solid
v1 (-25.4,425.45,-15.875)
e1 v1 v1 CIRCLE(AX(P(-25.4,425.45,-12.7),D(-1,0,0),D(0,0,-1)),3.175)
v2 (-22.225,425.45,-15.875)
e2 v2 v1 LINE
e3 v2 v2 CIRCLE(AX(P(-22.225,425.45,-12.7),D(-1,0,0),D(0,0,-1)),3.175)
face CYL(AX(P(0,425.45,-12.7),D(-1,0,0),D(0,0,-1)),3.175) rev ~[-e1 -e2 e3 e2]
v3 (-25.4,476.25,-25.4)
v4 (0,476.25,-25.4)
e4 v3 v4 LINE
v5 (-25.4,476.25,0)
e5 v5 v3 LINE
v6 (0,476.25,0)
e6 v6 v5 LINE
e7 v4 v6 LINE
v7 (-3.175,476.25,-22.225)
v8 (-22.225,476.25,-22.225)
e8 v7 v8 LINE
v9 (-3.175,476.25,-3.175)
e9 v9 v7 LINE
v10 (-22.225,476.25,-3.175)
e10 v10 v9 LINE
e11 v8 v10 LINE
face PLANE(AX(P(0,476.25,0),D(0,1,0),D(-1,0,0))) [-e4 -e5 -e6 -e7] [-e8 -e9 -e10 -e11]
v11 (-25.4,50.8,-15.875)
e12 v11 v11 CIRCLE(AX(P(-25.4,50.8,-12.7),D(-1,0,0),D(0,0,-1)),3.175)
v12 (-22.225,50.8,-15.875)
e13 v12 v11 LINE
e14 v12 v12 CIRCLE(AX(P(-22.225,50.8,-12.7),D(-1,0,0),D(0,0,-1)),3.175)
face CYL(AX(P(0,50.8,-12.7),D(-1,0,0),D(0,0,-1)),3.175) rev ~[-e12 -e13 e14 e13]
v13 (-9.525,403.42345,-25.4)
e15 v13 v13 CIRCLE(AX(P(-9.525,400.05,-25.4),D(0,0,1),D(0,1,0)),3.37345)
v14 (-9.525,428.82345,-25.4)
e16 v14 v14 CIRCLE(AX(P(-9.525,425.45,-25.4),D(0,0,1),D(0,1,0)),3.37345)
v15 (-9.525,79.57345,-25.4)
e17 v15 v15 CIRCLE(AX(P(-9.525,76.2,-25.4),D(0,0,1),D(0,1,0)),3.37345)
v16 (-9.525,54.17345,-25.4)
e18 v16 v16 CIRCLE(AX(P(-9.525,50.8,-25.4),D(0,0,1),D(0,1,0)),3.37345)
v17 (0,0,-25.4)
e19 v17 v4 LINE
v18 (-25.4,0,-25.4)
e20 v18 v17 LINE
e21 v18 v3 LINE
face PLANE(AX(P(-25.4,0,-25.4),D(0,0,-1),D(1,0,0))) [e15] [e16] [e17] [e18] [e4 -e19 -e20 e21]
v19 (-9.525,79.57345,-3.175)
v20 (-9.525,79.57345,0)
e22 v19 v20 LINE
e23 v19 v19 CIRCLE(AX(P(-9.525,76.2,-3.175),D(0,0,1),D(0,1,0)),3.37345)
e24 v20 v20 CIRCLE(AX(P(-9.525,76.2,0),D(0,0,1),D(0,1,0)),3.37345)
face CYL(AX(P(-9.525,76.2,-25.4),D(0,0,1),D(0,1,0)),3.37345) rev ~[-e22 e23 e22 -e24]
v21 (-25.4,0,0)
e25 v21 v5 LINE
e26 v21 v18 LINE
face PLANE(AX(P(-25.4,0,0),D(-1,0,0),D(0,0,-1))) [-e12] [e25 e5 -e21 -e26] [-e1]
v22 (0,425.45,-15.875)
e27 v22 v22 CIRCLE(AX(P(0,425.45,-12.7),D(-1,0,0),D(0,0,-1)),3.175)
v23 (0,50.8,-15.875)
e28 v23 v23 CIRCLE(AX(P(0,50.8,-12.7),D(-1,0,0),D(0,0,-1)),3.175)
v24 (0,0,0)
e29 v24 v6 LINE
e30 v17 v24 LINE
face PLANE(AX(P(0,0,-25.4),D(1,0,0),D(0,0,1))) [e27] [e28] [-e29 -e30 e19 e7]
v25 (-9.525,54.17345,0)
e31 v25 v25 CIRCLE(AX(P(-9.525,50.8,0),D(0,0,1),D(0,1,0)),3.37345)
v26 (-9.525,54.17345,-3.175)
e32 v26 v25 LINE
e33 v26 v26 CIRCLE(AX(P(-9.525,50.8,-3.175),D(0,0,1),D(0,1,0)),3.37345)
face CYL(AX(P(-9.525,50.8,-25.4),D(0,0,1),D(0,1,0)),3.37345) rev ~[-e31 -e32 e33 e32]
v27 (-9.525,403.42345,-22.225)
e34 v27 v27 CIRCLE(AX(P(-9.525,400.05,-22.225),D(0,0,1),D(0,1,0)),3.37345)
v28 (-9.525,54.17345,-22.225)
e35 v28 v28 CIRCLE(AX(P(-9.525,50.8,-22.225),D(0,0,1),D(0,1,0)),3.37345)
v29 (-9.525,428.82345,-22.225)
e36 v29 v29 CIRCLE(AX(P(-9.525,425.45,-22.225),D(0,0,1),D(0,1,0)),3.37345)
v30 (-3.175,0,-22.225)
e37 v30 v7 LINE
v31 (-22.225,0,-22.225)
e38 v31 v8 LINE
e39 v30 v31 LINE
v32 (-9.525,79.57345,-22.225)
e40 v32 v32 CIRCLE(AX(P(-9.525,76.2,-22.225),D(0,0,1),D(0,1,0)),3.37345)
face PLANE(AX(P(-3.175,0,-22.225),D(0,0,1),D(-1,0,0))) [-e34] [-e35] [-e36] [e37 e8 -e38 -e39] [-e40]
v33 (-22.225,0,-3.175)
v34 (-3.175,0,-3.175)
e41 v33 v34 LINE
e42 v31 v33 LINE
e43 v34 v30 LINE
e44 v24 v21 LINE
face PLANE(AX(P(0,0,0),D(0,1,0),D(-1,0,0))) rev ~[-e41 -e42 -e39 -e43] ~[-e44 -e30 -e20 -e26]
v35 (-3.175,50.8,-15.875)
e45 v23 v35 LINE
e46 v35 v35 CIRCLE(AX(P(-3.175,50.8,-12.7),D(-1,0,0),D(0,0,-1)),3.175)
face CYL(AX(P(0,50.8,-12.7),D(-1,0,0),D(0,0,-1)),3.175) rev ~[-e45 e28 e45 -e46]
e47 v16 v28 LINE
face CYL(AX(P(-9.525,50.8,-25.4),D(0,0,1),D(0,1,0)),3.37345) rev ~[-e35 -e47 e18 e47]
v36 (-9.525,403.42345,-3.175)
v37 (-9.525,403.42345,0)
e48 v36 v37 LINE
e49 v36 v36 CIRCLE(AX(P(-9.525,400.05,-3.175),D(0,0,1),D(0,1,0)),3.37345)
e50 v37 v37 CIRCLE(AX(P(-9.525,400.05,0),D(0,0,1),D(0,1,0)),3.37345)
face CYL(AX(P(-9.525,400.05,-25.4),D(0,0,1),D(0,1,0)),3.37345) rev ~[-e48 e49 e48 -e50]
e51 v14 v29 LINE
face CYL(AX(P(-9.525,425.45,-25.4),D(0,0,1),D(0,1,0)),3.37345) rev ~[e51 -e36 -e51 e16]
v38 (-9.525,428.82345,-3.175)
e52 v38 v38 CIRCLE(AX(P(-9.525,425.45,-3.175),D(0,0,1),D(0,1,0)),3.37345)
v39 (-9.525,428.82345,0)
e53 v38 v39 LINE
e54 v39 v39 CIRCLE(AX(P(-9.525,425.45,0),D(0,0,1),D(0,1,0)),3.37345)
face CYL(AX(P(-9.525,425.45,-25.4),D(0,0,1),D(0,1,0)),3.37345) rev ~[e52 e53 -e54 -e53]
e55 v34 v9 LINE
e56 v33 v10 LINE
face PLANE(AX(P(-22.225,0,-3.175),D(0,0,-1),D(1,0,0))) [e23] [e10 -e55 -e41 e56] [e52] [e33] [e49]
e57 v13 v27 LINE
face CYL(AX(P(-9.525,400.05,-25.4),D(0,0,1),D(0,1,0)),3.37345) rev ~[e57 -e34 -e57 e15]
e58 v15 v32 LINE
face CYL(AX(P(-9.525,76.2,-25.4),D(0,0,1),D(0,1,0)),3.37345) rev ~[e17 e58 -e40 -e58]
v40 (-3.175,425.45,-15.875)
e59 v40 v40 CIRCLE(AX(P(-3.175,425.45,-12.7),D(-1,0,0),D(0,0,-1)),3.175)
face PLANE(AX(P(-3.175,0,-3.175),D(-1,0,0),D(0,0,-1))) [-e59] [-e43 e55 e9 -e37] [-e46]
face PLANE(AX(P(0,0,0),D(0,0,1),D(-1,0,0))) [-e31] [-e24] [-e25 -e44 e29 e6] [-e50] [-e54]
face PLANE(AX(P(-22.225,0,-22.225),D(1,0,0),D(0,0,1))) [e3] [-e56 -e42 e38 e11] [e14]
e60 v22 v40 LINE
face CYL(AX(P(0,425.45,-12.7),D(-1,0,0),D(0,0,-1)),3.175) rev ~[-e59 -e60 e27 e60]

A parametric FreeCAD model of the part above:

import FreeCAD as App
import Part
import Sketcher

V = App.Vector
Q = App.Units.Quantity

doc = App.newDocument("Part")
body = doc.addObject("PartDesign::Body", "Body")

# Sketch on XZ plane
sketch1 = body.newObject("Sketcher::SketchObject", "Sketch")
sketch1.AttachmentSupport = (doc.getObject("XZ_Plane"), [""])
sketch1.MapMode = "FlatFace"
sketch1.addGeometry([
    Part.LineSegment(V(-25, 0, 0), V(0, 0, 0)),  # 0
    Part.LineSegment(V(0, 0, 0), V(0, -25, 0)),  # 1
    Part.LineSegment(V(0, -25, 0), V(-25, -25, 0)),  # 2
    Part.LineSegment(V(-25, -25, 0), V(-25, 0, 0)),  # 3
    Part.LineSegment(V(-22, -3, 0), V(-22, -22, 0)),  # 4
    Part.LineSegment(V(-22, -22, 0), V(-3, -22, 0)),  # 5
    Part.LineSegment(V(-3, -22, 0), V(-3, -3, 0)),  # 6
    Part.LineSegment(V(-3, -3, 0), V(-22, -3, 0)),  # 7
], False)
sketch1.addConstraint([
    Sketcher.Constraint("Coincident", 0, 2, 1, 1),
    Sketcher.Constraint("Coincident", 1, 2, 2, 1),
    Sketcher.Constraint("Coincident", 2, 2, 3, 1),
    Sketcher.Constraint("Coincident", 3, 2, 0, 1),
    Sketcher.Constraint("Coincident", 4, 2, 5, 1),
    Sketcher.Constraint("Coincident", 5, 2, 6, 1),
    Sketcher.Constraint("Coincident", 6, 2, 7, 1),
    Sketcher.Constraint("Coincident", 7, 2, 4, 1),
    Sketcher.Constraint("Horizontal", 0),
    Sketcher.Constraint("Vertical", 1),
    Sketcher.Constraint("Horizontal", 2),
    Sketcher.Constraint("Vertical", 3),
    Sketcher.Constraint("Vertical", 4),
    Sketcher.Constraint("Horizontal", 5),
    Sketcher.Constraint("Vertical", 6),
    Sketcher.Constraint("Horizontal", 7),
    Sketcher.Constraint("Coincident", 0, 2, -1, 1),
    Sketcher.Constraint("Equal", 2, 1),
    Sketcher.Constraint("Equal", 7, 4),
    Sketcher.Constraint("DistanceX", 0, 1, 0, 2, Q("1 in")),
    Sketcher.Constraint("DistanceX", 5, 2, -1, 1, Q("0.125 in")),
    Sketcher.Constraint("DistanceY", 6, 2, -1, 1, Q("0.125 in")),
    Sketcher.Constraint("DistanceX", 2, 2, 4, 2, Q("0.125 in")),
])
pad1 = body.newObject("PartDesign::Pad", "Pad")
pad1.Profile = sketch1
pad1.Length = Q("18.75 in")
pad1.Reversed = True

# Sketch on YZ plane
sketch2 = body.newObject("Sketcher::SketchObject", "Sketch001")
sketch2.AttachmentSupport = (doc.getObject("YZ_Plane"), [""])
sketch2.MapMode = "FlatFace"
sketch2.addGeometry([
    Part.Circle(V(50.8, -12.7, 0), V(0, 0, 1), 3.2),
    Part.Circle(V(425.4, -12.7, 0), V(0, 0, 1), 3.2),
], False)
sketch2.addConstraint([
    Sketcher.Constraint("Equal", 0, 1),
    Sketcher.Constraint("Horizontal", 0, 3, 1, 3),
    Sketcher.Constraint("Diameter", 0, Q("0.25 in")),
    Sketcher.Constraint("DistanceX", -1, 1, 0, 3, Q("2 in")),
    Sketcher.Constraint("DistanceY", 0, 3, -1, 1, Q("0.5 in")),
    Sketcher.Constraint("DistanceX", -1, 1, 1, 3, Q("16.75 in")),
])
doc.recompute()
hole = body.newObject("PartDesign::Hole", "Hole")
hole.Profile = sketch2
hole.ThreadType = "None"
hole.Diameter = Q("0.25 in")
hole.DepthType = "ThroughAll"

# Sketch on XY plane
sketch3 = body.newObject("Sketcher::SketchObject", "Sketch002")
sketch3.AttachmentSupport = (doc.getObject("XY_Plane"), [""])
sketch3.MapMode = "FlatFace"
sketch3.AttachmentOffset = App.Placement(V(0, 0, -1 * 25.4), App.Rotation())
sketch3.addGeometry([
    Part.Circle(V(-9.5, 50.8, 0), V(0, 0, 1), 3.4),
    Part.Circle(V(-9.5, 425.4, 0), V(0, 0, 1), 3.4),
    Part.Circle(V(-9.5, 400.1, 0), V(0, 0, 1), 3.4),
    Part.Circle(V(-9.5, 76.2, 0), V(0, 0, 1), 3.4),
], False)
sketch3.addConstraint([
    Sketcher.Constraint("Equal", 0, 1),
    Sketcher.Constraint("Equal", 1, 2),
    Sketcher.Constraint("Equal", 2, 3),
    Sketcher.Constraint("Vertical", 0, 3, 1, 3),
    Sketcher.Constraint("Vertical", 1, 3, 2, 3),
    Sketcher.Constraint("Vertical", 2, 3, 3, 3),
    Sketcher.Constraint("Diameter", 0, Q("0.2656299 in")),
    Sketcher.Constraint("DistanceY", -1, 1, 0, 3, Q("2 in")),
    Sketcher.Constraint("DistanceY", -1, 1, 3, 3, Q("3 in")),
    Sketcher.Constraint("DistanceY", 2, 3, 1, 3, Q("1 in")),
    Sketcher.Constraint("DistanceY", -1, 1, 1, 3, Q("16.75 in")),
    Sketcher.Constraint("DistanceX", 0, 3, -1, 1, Q("0.375 in")),
])
doc.recompute()
hole2 = body.newObject("PartDesign::Hole", "Hole001")
hole2.Profile = sketch3
hole2.ThreadType = "None"
hole2.Diameter = Q("0.265626 in")
hole2.DepthType = "ThroughAll"
hole2.Reversed = True

doc.recompute()
